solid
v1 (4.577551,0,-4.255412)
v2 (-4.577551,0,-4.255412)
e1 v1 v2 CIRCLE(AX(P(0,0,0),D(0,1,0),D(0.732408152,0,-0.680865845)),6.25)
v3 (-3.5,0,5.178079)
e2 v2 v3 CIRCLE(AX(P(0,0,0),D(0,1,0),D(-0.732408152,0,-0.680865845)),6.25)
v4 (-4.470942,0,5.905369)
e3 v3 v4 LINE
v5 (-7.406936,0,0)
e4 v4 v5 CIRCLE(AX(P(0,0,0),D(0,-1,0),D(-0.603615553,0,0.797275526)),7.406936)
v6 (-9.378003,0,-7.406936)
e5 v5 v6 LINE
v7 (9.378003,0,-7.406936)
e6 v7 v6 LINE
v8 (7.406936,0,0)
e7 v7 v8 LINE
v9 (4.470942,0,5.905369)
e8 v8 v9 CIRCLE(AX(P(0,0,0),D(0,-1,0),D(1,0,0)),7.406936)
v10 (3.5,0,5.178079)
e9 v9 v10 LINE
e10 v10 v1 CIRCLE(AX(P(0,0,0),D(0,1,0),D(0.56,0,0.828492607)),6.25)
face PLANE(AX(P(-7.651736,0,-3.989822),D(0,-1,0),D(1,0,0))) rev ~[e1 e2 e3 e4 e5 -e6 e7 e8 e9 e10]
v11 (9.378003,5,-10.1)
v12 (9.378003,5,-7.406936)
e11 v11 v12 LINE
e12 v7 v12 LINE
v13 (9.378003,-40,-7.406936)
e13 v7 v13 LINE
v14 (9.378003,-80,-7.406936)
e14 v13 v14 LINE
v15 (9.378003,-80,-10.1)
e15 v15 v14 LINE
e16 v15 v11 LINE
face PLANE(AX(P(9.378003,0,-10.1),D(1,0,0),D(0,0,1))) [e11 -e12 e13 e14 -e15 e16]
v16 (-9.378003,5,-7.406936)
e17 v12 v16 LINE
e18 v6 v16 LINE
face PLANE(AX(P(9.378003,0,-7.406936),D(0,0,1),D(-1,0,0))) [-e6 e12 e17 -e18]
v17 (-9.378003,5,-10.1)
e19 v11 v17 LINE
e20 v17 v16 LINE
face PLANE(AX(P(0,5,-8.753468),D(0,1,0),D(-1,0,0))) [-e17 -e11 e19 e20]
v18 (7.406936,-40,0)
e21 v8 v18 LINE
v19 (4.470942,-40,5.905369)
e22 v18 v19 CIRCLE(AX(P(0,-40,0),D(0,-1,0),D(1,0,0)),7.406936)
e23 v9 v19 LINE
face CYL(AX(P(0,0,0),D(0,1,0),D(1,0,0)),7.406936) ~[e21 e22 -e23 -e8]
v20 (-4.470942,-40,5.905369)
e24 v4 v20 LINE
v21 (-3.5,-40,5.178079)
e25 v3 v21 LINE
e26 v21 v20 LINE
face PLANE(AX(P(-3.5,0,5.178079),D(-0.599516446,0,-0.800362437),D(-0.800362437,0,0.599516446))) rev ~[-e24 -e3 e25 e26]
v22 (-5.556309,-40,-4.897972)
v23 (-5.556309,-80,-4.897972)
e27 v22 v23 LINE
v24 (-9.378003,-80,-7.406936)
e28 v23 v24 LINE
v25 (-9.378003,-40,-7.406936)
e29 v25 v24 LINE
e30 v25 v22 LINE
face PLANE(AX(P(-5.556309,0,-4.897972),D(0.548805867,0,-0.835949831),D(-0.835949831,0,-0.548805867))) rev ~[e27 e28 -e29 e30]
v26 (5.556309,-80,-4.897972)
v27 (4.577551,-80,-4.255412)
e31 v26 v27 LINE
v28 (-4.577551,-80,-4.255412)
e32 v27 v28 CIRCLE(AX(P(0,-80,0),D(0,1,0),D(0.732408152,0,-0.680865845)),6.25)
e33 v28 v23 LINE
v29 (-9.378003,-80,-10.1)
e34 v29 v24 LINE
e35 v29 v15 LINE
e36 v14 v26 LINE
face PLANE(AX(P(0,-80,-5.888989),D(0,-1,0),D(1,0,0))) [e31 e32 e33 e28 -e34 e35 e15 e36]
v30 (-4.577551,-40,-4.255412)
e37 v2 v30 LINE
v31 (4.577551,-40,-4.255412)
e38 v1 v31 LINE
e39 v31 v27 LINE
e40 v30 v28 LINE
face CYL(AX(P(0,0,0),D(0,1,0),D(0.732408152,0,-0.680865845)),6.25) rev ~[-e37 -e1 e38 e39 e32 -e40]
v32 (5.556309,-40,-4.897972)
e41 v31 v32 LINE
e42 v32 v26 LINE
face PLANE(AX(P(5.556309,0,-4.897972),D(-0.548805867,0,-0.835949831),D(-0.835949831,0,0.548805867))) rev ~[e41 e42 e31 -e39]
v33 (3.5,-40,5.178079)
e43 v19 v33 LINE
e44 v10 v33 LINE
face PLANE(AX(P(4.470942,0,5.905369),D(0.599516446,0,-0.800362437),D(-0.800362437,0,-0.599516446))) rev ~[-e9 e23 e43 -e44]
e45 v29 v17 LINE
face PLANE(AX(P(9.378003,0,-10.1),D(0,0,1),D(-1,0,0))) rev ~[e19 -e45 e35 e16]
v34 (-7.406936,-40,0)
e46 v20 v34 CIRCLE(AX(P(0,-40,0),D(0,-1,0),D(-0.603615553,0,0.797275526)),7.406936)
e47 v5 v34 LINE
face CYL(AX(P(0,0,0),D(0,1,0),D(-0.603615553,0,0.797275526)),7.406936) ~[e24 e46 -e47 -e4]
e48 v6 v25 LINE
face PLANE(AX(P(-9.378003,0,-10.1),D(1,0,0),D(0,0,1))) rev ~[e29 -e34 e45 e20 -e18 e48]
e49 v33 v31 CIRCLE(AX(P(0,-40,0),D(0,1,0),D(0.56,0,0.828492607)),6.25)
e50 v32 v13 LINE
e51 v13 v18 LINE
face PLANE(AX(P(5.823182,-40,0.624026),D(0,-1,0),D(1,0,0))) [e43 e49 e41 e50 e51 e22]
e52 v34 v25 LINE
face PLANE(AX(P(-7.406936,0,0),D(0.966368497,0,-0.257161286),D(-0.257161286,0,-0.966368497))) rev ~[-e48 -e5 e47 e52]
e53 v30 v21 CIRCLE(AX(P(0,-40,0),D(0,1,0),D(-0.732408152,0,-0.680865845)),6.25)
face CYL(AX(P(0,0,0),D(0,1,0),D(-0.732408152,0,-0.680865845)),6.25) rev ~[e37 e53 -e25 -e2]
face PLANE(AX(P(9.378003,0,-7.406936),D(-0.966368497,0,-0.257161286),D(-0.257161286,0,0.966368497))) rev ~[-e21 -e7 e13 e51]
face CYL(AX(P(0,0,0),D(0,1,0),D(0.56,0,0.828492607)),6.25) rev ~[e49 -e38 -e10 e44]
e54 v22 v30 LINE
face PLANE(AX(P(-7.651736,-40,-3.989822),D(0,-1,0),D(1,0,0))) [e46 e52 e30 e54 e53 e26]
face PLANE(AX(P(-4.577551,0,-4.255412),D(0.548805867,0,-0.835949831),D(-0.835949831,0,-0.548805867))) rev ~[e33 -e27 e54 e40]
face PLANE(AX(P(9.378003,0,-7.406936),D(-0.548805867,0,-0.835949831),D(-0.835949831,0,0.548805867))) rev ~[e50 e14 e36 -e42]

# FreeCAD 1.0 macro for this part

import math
import FreeCAD as App
import Part
import Sketcher

V = App.Vector

doc = App.newDocument("Part")
body = doc.addObject("PartDesign::Body", "Body")

sketch1 = body.newObject("Sketcher::SketchObject", "Sketch")
sketch1.AttachmentSupport = (doc.getObject("XZ_Plane"), [""])
sketch1.MapMode = "FlatFace"
sketch1.addGeometry(Part.ArcOfCircle(Part.Circle(V(0, 0, 0), V(0, 0, 1), 6.2), math.radians(-137), math.radians(-43)), False)
sketch1.addGeometry(Part.LineSegment(V(-4.6, -4.3, 0), V(-5.6, -4.9, 0)), False)
sketch1.addGeometry(Part.LineSegment(V(-5.6, -4.9, 0), V(-9.4, -7.4, 0)), False)
sketch1.addGeometry(Part.LineSegment(V(-9.4, -7.4, 0), V(-9.4, -10.1, 0)), False)
sketch1.addGeometry(Part.LineSegment(V(-9.4, -10.1, 0), V(9.4, -10.1, 0)), False)
sketch1.addGeometry(Part.LineSegment(V(9.4, -10.1, 0), V(9.4, -7.4, 0)), False)
sketch1.addGeometry(Part.LineSegment(V(9.4, -7.4, 0), V(5.6, -4.9, 0)), False)
sketch1.addGeometry(Part.LineSegment(V(5.6, -4.9, 0), V(4.6, -4.3, 0)), False)
sketch1.addConstraint(Sketcher.Constraint("Coincident", 0, 1, 1, 1))
sketch1.addConstraint(Sketcher.Constraint("Coincident", 1, 2, 2, 1))
sketch1.addConstraint(Sketcher.Constraint("Coincident", 2, 2, 3, 1))
sketch1.addConstraint(Sketcher.Constraint("Coincident", 3, 2, 4, 1))
sketch1.addConstraint(Sketcher.Constraint("Coincident", 4, 2, 5, 1))
sketch1.addConstraint(Sketcher.Constraint("Coincident", 5, 2, 6, 1))
sketch1.addConstraint(Sketcher.Constraint("Coincident", 6, 2, 7, 1))
sketch1.addConstraint(Sketcher.Constraint("Coincident", 7, 2, 0, 2))
sketch1.addConstraint(Sketcher.Constraint("Vertical", 3))
sketch1.addConstraint(Sketcher.Constraint("Horizontal", 4))
sketch1.addConstraint(Sketcher.Constraint("Vertical", 5))
sketch1.addConstraint(Sketcher.Constraint("Coincident", 0, 3, -1, 1))
sketch1.addConstraint(Sketcher.Constraint("Symmetric", 2, 2, 5, 2, -2))
sketch1.addConstraint(Sketcher.Constraint("Symmetric", 1, 2, 6, 2, -2))
sketch1.addConstraint(Sketcher.Constraint("Parallel", 1, 2))
sketch1.addConstraint(Sketcher.Constraint("Parallel", 6, 7))
sketch1.addConstraint(Sketcher.Constraint("Radius", 0, 6.25))
sketch1.addConstraint(Sketcher.Constraint("DistanceY", 3, 2, -1, 1, 10.1))
sketch1.addConstraint(Sketcher.Constraint("DistanceX", 0, 1, 7, 2, 9.155102))
sketch1.addConstraint(Sketcher.Constraint("Distance", 2, 4.571679))
sketch1.addConstraint(Sketcher.Constraint("DistanceX", 4, 1, 4, 2, 18.756006))
sketch1.addConstraint(Sketcher.Constraint("DistanceY", 3, 2, 3, 1, 2.693064))
pad1 = body.newObject("PartDesign::Pad", "Pad")
pad1.Profile = sketch1
pad1.Length = 80

sketch2 = body.newObject("Sketcher::SketchObject", "Sketch001")
sketch2.AttachmentSupport = (doc.getObject("XZ_Plane"), [""])
sketch2.MapMode = "FlatFace"
sketch2.addGeometry(Part.LineSegment(V(-9.4, -7.4, 0), V(-5.6, -4.9, 0)), False)
sketch2.addGeometry(Part.LineSegment(V(-5.6, -4.9, 0), V(-4.6, -4.3, 0)), False)
sketch2.addGeometry(Part.ArcOfCircle(Part.Circle(V(0, 0, 0), V(0, 0, 1), 6.2), math.radians(124), math.radians(223)), False)
sketch2.addGeometry(Part.LineSegment(V(-3.5, 5.2, 0), V(-4.5, 5.9, 0)), False)
sketch2.addGeometry(Part.ArcOfCircle(Part.Circle(V(0, 0, 0), V(0, 0, 1), 7.4), math.radians(127), math.radians(180)), False)
sketch2.addGeometry(Part.LineSegment(V(-7.4, 0, 0), V(-9.4, -7.4, 0)), False)
sketch2.addGeometry(Part.ArcOfCircle(Part.Circle(V(0, 0, 0), V(0, 0, 1), 6.2), math.radians(-43), math.radians(56)), False)
sketch2.addGeometry(Part.LineSegment(V(4.6, -4.3, 0), V(5.6, -4.9, 0)), False)
sketch2.addGeometry(Part.LineSegment(V(5.6, -4.9, 0), V(9.4, -7.4, 0)), False)
sketch2.addGeometry(Part.LineSegment(V(9.4, -7.4, 0), V(7.4, 0, 0)), False)
sketch2.addGeometry(Part.ArcOfCircle(Part.Circle(V(0, 0, 0), V(0, 0, 1), 7.4), math.radians(0), math.radians(53)), False)
sketch2.addGeometry(Part.LineSegment(V(4.5, 5.9, 0), V(3.5, 5.2, 0)), False)
sketch2.addConstraint(Sketcher.Constraint("Coincident", 0, 2, 1, 1))
sketch2.addConstraint(Sketcher.Constraint("Coincident", 1, 2, 2, 2))
sketch2.addConstraint(Sketcher.Constraint("Coincident", 2, 1, 3, 1))
sketch2.addConstraint(Sketcher.Constraint("Coincident", 3, 2, 4, 1))
sketch2.addConstraint(Sketcher.Constraint("Coincident", 4, 2, 5, 1))
sketch2.addConstraint(Sketcher.Constraint("Coincident", 5, 2, 0, 1))
sketch2.addConstraint(Sketcher.Constraint("Coincident", 6, 1, 7, 1))
sketch2.addConstraint(Sketcher.Constraint("Coincident", 7, 2, 8, 1))
sketch2.addConstraint(Sketcher.Constraint("Coincident", 8, 2, 9, 1))
sketch2.addConstraint(Sketcher.Constraint("Coincident", 9, 2, 10, 1))
sketch2.addConstraint(Sketcher.Constraint("Coincident", 10, 2, 11, 1))
sketch2.addConstraint(Sketcher.Constraint("Coincident", 11, 2, 6, 2))
sketch2.addConstraint(Sketcher.Constraint("Coincident", 2, 3, -1, 1))
sketch2.addConstraint(Sketcher.Constraint("Coincident", 4, 3, -1, 1))
sketch2.addConstraint(Sketcher.Constraint("Coincident", 6, 3, -1, 1))
sketch2.addConstraint(Sketcher.Constraint("Coincident", 10, 3, -1, 1))
sketch2.addConstraint(Sketcher.Constraint("Equal", 2, 6))
sketch2.addConstraint(Sketcher.Constraint("Equal", 4, 10))
sketch2.addConstraint(Sketcher.Constraint("Symmetric", 0, 2, 7, 2, -2))
sketch2.addConstraint(Sketcher.Constraint("Symmetric", 5, 2, 8, 2, -2))
sketch2.addConstraint(Sketcher.Constraint("PointOnObject", 4, 2, -1))
sketch2.addConstraint(Sketcher.Constraint("PointOnObject", 9, 2, -1))
sketch2.addConstraint(Sketcher.Constraint("Parallel", 0, 1))
sketch2.addConstraint(Sketcher.Constraint("Parallel", 7, 8))
sketch2.addConstraint(Sketcher.Constraint("Horizontal", 3, 2, 10, 2))
sketch2.addConstraint(Sketcher.Constraint("Horizontal", 2, 1, 11, 2))
sketch2.addConstraint(Sketcher.Constraint("Radius", 2, 6.25))
sketch2.addConstraint(Sketcher.Constraint("DistanceX", 2, 1, -1, 1, 3.5))
sketch2.addConstraint(Sketcher.Constraint("Radius", 4, 7.406936))
sketch2.addConstraint(Sketcher.Constraint("DistanceX", 1, 2, 6, 1, 9.155102))
sketch2.addConstraint(Sketcher.Constraint("Distance", 0, 4.571679))
sketch2.addConstraint(Sketcher.Constraint("Distance", 5, 7.664712))
sketch2.addConstraint(Sketcher.Constraint("DistanceX", 0, 2, -1, 1, 5.556309))
sketch2.addConstraint(Sketcher.Constraint("DistanceX", 3, 2, -1, 1, 4.470942))
pad2 = body.newObject("PartDesign::Pad", "Pad001")
pad2.Profile = sketch2
pad2.Length = 40

sketch3 = body.newObject("Sketcher::SketchObject", "Sketch002")
sketch3.AttachmentSupport = (doc.getObject("XZ_Plane"), [""])
sketch3.MapMode = "FlatFace"
sketch3.addGeometry(Part.LineSegment(V(9.4, -7.4, 0), V(9.4, -10.1, 0)), False)
sketch3.addGeometry(Part.LineSegment(V(9.4, -10.1, 0), V(-9.4, -10.1, 0)), False)
sketch3.addGeometry(Part.LineSegment(V(-9.4, -10.1, 0), V(-9.4, -7.4, 0)), False)
sketch3.addGeometry(Part.LineSegment(V(-9.4, -7.4, 0), V(9.4, -7.4, 0)), False)
sketch3.addConstraint(Sketcher.Constraint("Coincident", 0, 2, 1, 1))
sketch3.addConstraint(Sketcher.Constraint("Coincident", 1, 2, 2, 1))
sketch3.addConstraint(Sketcher.Constraint("Coincident", 2, 2, 3, 1))
sketch3.addConstraint(Sketcher.Constraint("Coincident", 3, 2, 0, 1))
sketch3.addConstraint(Sketcher.Constraint("Vertical", 0))
sketch3.addConstraint(Sketcher.Constraint("Horizontal", 1))
sketch3.addConstraint(Sketcher.Constraint("Vertical", 2))
sketch3.addConstraint(Sketcher.Constraint("Horizontal", 3))
sketch3.addConstraint(Sketcher.Constraint("DistanceY", 0, 2, -1, 1, 10.1))
sketch3.addConstraint(Sketcher.Constraint("DistanceX", 1, 2, 1, 1, 18.756006))
sketch3.addConstraint(Sketcher.Constraint("DistanceY", 0, 2, 0, 1, 2.693064))
sketch3.addConstraint(Sketcher.Constraint("DistanceX", -1, 1, 0, 2, 9.378003))
pad3 = body.newObject("PartDesign::Pad", "Pad002")
pad3.Profile = sketch3
pad3.Length = 5
pad3.Reversed = True

doc.recompute()
